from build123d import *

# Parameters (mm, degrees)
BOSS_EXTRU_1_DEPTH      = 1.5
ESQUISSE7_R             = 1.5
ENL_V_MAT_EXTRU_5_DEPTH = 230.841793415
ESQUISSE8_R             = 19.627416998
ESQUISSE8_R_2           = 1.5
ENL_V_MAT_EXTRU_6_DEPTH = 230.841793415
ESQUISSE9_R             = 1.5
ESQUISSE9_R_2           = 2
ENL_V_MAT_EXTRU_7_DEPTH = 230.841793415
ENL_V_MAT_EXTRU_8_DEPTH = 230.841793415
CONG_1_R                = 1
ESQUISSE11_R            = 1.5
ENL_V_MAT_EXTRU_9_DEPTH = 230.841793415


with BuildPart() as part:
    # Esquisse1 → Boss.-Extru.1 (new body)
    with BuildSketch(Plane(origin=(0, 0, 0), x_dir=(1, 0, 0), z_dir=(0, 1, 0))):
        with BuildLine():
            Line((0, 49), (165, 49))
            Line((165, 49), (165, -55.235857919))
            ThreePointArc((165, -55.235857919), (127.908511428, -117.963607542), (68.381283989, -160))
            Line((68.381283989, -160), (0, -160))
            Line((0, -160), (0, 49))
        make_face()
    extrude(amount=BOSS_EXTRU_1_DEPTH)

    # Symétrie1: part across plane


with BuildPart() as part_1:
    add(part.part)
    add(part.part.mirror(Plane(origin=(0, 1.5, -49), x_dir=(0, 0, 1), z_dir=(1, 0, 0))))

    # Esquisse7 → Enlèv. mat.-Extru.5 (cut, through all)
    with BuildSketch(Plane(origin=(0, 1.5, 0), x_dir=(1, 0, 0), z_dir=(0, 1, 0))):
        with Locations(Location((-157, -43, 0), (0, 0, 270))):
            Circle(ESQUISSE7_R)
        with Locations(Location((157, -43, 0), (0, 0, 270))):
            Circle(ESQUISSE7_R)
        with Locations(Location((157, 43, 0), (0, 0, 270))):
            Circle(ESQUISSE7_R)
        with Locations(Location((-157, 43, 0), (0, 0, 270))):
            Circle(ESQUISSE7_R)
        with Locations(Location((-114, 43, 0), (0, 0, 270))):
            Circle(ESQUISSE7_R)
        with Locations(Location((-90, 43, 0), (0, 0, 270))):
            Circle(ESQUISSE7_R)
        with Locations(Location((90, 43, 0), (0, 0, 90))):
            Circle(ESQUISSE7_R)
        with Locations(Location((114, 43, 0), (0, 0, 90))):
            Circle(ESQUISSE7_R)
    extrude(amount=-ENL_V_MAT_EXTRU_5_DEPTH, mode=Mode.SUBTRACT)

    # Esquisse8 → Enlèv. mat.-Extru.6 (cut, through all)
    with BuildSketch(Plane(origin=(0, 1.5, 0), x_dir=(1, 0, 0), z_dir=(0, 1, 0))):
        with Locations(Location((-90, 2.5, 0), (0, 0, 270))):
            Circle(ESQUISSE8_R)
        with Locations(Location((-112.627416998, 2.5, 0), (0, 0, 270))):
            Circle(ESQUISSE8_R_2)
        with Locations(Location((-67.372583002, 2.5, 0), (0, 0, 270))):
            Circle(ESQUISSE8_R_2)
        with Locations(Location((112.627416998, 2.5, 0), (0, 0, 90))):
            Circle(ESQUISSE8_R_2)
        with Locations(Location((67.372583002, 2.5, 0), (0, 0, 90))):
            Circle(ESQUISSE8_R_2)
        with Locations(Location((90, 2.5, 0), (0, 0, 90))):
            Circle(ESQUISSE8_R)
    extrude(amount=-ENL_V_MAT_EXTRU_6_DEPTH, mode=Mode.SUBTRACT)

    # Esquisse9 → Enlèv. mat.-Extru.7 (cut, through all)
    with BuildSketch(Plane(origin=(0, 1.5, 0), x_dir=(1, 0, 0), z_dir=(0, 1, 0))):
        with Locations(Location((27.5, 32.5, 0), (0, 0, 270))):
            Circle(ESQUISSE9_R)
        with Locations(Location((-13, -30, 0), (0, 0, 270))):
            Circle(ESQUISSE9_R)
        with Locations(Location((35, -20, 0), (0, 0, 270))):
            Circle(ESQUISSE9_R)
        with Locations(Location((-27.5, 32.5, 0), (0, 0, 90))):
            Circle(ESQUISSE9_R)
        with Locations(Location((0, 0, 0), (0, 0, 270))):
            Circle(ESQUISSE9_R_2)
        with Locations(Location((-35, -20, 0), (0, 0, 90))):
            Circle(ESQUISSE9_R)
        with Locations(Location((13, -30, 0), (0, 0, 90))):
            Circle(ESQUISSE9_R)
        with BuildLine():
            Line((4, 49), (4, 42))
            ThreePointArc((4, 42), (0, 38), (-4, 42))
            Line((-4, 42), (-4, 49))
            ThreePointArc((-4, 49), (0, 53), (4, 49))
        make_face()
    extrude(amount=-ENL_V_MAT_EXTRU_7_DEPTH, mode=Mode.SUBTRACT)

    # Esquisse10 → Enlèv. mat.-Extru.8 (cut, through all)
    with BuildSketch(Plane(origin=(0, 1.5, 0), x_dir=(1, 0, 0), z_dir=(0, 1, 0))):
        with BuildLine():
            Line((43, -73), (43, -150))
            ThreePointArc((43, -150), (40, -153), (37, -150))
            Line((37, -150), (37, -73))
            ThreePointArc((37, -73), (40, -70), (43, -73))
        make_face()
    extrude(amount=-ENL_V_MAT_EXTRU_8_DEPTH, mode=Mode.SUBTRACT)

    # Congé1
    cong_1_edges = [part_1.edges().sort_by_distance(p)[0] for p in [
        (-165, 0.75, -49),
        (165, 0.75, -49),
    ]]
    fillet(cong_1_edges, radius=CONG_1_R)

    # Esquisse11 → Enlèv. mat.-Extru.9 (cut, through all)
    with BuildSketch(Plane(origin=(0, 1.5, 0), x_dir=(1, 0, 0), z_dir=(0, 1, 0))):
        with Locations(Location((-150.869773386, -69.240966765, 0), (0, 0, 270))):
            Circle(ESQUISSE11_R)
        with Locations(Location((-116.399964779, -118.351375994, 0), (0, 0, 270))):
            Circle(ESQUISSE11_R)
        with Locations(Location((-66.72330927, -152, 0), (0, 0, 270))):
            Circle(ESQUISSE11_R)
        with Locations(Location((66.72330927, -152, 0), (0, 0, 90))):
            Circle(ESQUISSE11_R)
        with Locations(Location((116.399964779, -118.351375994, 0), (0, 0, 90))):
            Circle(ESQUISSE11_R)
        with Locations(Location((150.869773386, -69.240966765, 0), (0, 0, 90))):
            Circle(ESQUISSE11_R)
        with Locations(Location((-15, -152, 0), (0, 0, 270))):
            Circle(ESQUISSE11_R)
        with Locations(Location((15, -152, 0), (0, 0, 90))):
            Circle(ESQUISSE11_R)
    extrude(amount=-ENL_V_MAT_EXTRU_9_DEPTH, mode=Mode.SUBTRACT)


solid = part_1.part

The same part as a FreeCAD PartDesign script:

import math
import FreeCAD as App
import Part
import Sketcher
from FreeCAD import Vector


def edges_at(feature, points):
    """Names of the edges that pass closest to the given points."""
    edges = feature.Shape.Edges
    near = lambda p: min(range(len(edges)), key=lambda i: edges[i].distToShape(Part.Vertex(*p))[0])
    return sorted({f"Edge{near(p) + 1}" for p in points})

doc = App.newDocument("Part")
body = doc.addObject("PartDesign::Body", "Body")

# Sketch on XZ plane
sketch1 = body.newObject("Sketcher::SketchObject", "Sketch")
sketch1.AttachmentSupport = (doc.getObject("XZ_Plane"), [""])
sketch1.MapMode = "FlatFace"
sketch1.addGeometry(Part.LineSegment(Vector(165, -49, 0), Vector(0, -49, 0)), False)
sketch1.addGeometry(Part.LineSegment(Vector(0, -49, 0), Vector(0, 160, 0)), False)
sketch1.addGeometry(Part.LineSegment(Vector(0, 160, 0), Vector(68.381284, 160, 0)), False)
sketch1.addGeometry(Part.ArcOfCircle(Part.Circle(Vector(0, 0, 0), Vector(0, 0, 1), 174), math.radians(18.508628), math.radians(66.858959)), False)
sketch1.addGeometry(Part.LineSegment(Vector(165, 55.235858, 0), Vector(165, -49, 0)), False)
sketch1.addConstraint(Sketcher.Constraint("Coincident", 0, 2, 1, 1))
sketch1.addConstraint(Sketcher.Constraint("Coincident", 1, 2, 2, 1))
sketch1.addConstraint(Sketcher.Constraint("Coincident", 2, 2, 3, 2))
sketch1.addConstraint(Sketcher.Constraint("Coincident", 3, 1, 4, 1))
sketch1.addConstraint(Sketcher.Constraint("Coincident", 4, 2, 0, 1))
sketch1.addConstraint(Sketcher.Constraint("Horizontal", 0))
sketch1.addConstraint(Sketcher.Constraint("Vertical", 1))
sketch1.addConstraint(Sketcher.Constraint("Horizontal", 2))
sketch1.addConstraint(Sketcher.Constraint("Vertical", 4))
sketch1.addConstraint(Sketcher.Constraint("Coincident", 3, 3, -1, 1))
sketch1.addConstraint(Sketcher.Constraint("PointOnObject", 0, 2, -2))
sketch1.addConstraint(Sketcher.Constraint("Radius", 3, 174.0))
sketch1.addConstraint(Sketcher.Constraint("DistanceX", 0, 2, 0, 1, 165.0))
sketch1.addConstraint(Sketcher.Constraint("DistanceY", 1, 1, 1, 2, 209.0))
sketch1.addConstraint(Sketcher.Constraint("DistanceY", 0, 2, -1, 1, 49.0))
pad1 = body.newObject("PartDesign::Pad", "Pad")
pad1.Profile = sketch1
pad1.Length = 1.5
pad1.Reversed = True
body2 = doc.addObject("PartDesign::Body", "Body001")
doc.recompute()

body2.BaseFeature = body
doc.recompute()

mirroring = doc.addObject("Part::Mirroring", "Mirroring")
mirroring.Source = body
mirroring.Base = Vector(0, 1.5, -49)
mirroring.Normal = Vector(1, 0, 0)
body3 = doc.addObject("PartDesign::Body", "Body002")
body3.BaseFeature = mirroring
boolean = body2.newObject("PartDesign::Boolean", "Boolean")
boolean.Type = "Fuse"
boolean.addObjects([body3])
doc.recompute()

# Sketch on XZ plane
sketch2 = body2.newObject("Sketcher::SketchObject", "Sketch001")
sketch2.AttachmentSupport = (doc.getObject("XZ_Plane001"), [""])
sketch2.MapMode = "FlatFace"
sketch2.AttachmentOffset = App.Placement(Vector(0, 0, -1.5), App.Rotation())
sketch2.addGeometry(Part.Circle(Vector(-157, 43, 0), Vector(0, 0, 1), 1.5), False)
sketch2.addGeometry(Part.Circle(Vector(157, 43, 0), Vector(0, 0, 1), 1.5), False)
sketch2.addGeometry(Part.Circle(Vector(157, -43, 0), Vector(0, 0, 1), 1.5), False)
sketch2.addGeometry(Part.Circle(Vector(-157, -43, 0), Vector(0, 0, 1), 1.5), False)
sketch2.addGeometry(Part.Circle(Vector(-114, -43, 0), Vector(0, 0, 1), 1.5), False)
sketch2.addGeometry(Part.Circle(Vector(-90, -43, 0), Vector(0, 0, 1), 1.5), False)
sketch2.addGeometry(Part.Circle(Vector(90, -43, 0), Vector(0, 0, 1), 1.5), False)
sketch2.addGeometry(Part.Circle(Vector(114, -43, 0), Vector(0, 0, 1), 1.5), False)
sketch2.addConstraint(Sketcher.Constraint("Equal", 0, 1))
sketch2.addConstraint(Sketcher.Constraint("Equal", 1, 2))
sketch2.addConstraint(Sketcher.Constraint("Equal", 2, 3))
sketch2.addConstraint(Sketcher.Constraint("Equal", 3, 4))
sketch2.addConstraint(Sketcher.Constraint("Equal", 4, 5))
sketch2.addConstraint(Sketcher.Constraint("Equal", 5, 6))
sketch2.addConstraint(Sketcher.Constraint("Equal", 6, 7))
sketch2.addConstraint(Sketcher.Constraint("Symmetric", 0, 3, 2, 3, -1, 1))
sketch2.addConstraint(Sketcher.Constraint("Symmetric", 1, 3, 3, 3, -1, 1))
sketch2.addConstraint(Sketcher.Constraint("Symmetric", 0, 3, 1, 3, -2))
sketch2.addConstraint(Sketcher.Constraint("Symmetric", 5, 3, 6, 3, -2))
sketch2.addConstraint(Sketcher.Constraint("Symmetric", 4, 3, 7, 3, -2))
sketch2.addConstraint(Sketcher.Constraint("Horizontal", 3, 3, 4, 3))
sketch2.addConstraint(Sketcher.Constraint("Horizontal", 4, 3, 5, 3))
sketch2.addConstraint(Sketcher.Constraint("Diameter", 0, 3.0))
sketch2.addConstraint(Sketcher.Constraint("DistanceX", 0, 3, -1, 1, 157.0))
sketch2.addConstraint(Sketcher.Constraint("DistanceY", -1, 1, 0, 3, 43.0))
sketch2.addConstraint(Sketcher.Constraint("DistanceX", 4, 3, -1, 1, 114.0))
sketch2.addConstraint(Sketcher.Constraint("DistanceX", 5, 3, -1, 1, 90.0))
pocket1 = body2.newObject("PartDesign::Pocket", "Pocket")
pocket1.Profile = sketch2
pocket1.Type = "ThroughAll"
pocket1.Reversed = True

# Sketch on XZ plane
sketch3 = body2.newObject("Sketcher::SketchObject", "Sketch002")
sketch3.AttachmentSupport = (doc.getObject("XZ_Plane001"), [""])
sketch3.MapMode = "FlatFace"
sketch3.AttachmentOffset = App.Placement(Vector(0, 0, -1.5), App.Rotation())
sketch3.addGeometry(Part.Circle(Vector(-90, -2.5, 0), Vector(0, 0, 1), 19.627417), False)
sketch3.addGeometry(Part.Circle(Vector(-112.627417, -2.5, 0), Vector(0, 0, 1), 1.5), False)
sketch3.addGeometry(Part.Circle(Vector(-67.372583, -2.5, 0), Vector(0, 0, 1), 1.5), False)
sketch3.addGeometry(Part.Circle(Vector(112.627417, -2.5, 0), Vector(0, 0, 1), 1.5), False)
sketch3.addGeometry(Part.Circle(Vector(67.372583, -2.5, 0), Vector(0, 0, 1), 1.5), False)
sketch3.addGeometry(Part.Circle(Vector(90, -2.5, 0), Vector(0, 0, 1), 19.627417), False)
sketch3.addConstraint(Sketcher.Constraint("Equal", 1, 2))
sketch3.addConstraint(Sketcher.Constraint("Equal", 2, 3))
sketch3.addConstraint(Sketcher.Constraint("Equal", 3, 4))
sketch3.addConstraint(Sketcher.Constraint("Equal", 0, 5))
sketch3.addConstraint(Sketcher.Constraint("Symmetric", 1, 3, 3, 3, -2))
sketch3.addConstraint(Sketcher.Constraint("Symmetric", 2, 3, 4, 3, -2))
sketch3.addConstraint(Sketcher.Constraint("Symmetric", 0, 3, 5, 3, -2))
sketch3.addConstraint(Sketcher.Constraint("Horizontal", 0, 3, 1, 3))
sketch3.addConstraint(Sketcher.Constraint("Horizontal", 1, 3, 2, 3))
sketch3.addConstraint(Sketcher.Constraint("Diameter", 1, 3.0))
sketch3.addConstraint(Sketcher.Constraint("DistanceX", 0, 3, -1, 1, 90.0))
sketch3.addConstraint(Sketcher.Constraint("DistanceX", 2, 3, 3, 3, 180.0))
sketch3.addConstraint(Sketcher.Constraint("DistanceY", 0, 3, -1, 1, 2.5))
sketch3.addConstraint(Sketcher.Constraint("Diameter", 0, 39.254834))
sketch3.addConstraint(Sketcher.Constraint("DistanceX", 1, 3, -1, 1, 112.627417))
pocket2 = body2.newObject("PartDesign::Pocket", "Pocket001")
pocket2.Profile = sketch3
pocket2.Type = "ThroughAll"
pocket2.Reversed = True

# Sketch on XZ plane
sketch4 = body2.newObject("Sketcher::SketchObject", "Sketch003")
sketch4.AttachmentSupport = (doc.getObject("XZ_Plane001"), [""])
sketch4.MapMode = "FlatFace"
sketch4.AttachmentOffset = App.Placement(Vector(0, 0, -1.5), App.Rotation())
sketch4.addGeometry(Part.Circle(Vector(27.5, -32.5, 0), Vector(0, 0, 1), 1.5), False)
sketch4.addGeometry(Part.Circle(Vector(-13, 30, 0), Vector(0, 0, 1), 1.5), False)
sketch4.addGeometry(Part.Circle(Vector(35, 20, 0), Vector(0, 0, 1), 1.5), False)
sketch4.addGeometry(Part.Circle(Vector(-27.5, -32.5, 0), Vector(0, 0, 1), 1.5), False)
sketch4.addGeometry(Part.Circle(Vector(0, 0, 0), Vector(0, 0, 1), 2), False)
sketch4.addGeometry(Part.Circle(Vector(-35, 20, 0), Vector(0, 0, 1), 1.5), False)
sketch4.addGeometry(Part.Circle(Vector(13, 30, 0), Vector(0, 0, 1), 1.5), False)
sketch4.addGeometry(Part.LineSegment(Vector(4, -42, 0), Vector(4, -49, 0)), False)
sketch4.addGeometry(Part.ArcOfCircle(Part.Circle(Vector(0, -49, 0), Vector(0, 0, 1), 4), math.radians(180), math.radians(360)), False)
sketch4.addGeometry(Part.LineSegment(Vector(-4, -49, 0), Vector(-4, -42, 0)), False)
sketch4.addGeometry(Part.ArcOfCircle(Part.Circle(Vector(0, -42, 0), Vector(0, 0, 1), 4), math.radians(0), math.radians(180)), False)
sketch4.addConstraint(Sketcher.Constraint("Tangent", 7, 2, 8, 2))
sketch4.addConstraint(Sketcher.Constraint("Tangent", 8, 1, 9, 1))
sketch4.addConstraint(Sketcher.Constraint("Tangent", 9, 2, 10, 2))
sketch4.addConstraint(Sketcher.Constraint("Tangent", 10, 1, 7, 1))
sketch4.addConstraint(Sketcher.Constraint("Vertical", 7))
sketch4.addConstraint(Sketcher.Constraint("Vertical", 9))
sketch4.addConstraint(Sketcher.Constraint("Coincident", 4, 3, -1, 1))
sketch4.addConstraint(Sketcher.Constraint("Equal", 0, 1))
sketch4.addConstraint(Sketcher.Constraint("Equal", 1, 2))
sketch4.addConstraint(Sketcher.Constraint("Equal", 2, 3))
sketch4.addConstraint(Sketcher.Constraint("Equal", 3, 5))
sketch4.addConstraint(Sketcher.Constraint("Equal", 5, 6))
sketch4.addConstraint(Sketcher.Constraint("Symmetric", 0, 3, 3, 3, -2))
sketch4.addConstraint(Sketcher.Constraint("Symmetric", 2, 3, 5, 3, -2))
sketch4.addConstraint(Sketcher.Constraint("Symmetric", 1, 3, 6, 3, -2))
sketch4.addConstraint(Sketcher.Constraint("PointOnObject", 8, 3, -2))
sketch4.addConstraint(Sketcher.Constraint("Diameter", 0, 3.0))
sketch4.addConstraint(Sketcher.Constraint("Diameter", 4, 4.0))
sketch4.addConstraint(Sketcher.Constraint("Radius", 8, 4.0))
sketch4.addConstraint(Sketcher.Constraint("DistanceY", 7, 2, 7, 1, 7.0))
sketch4.addConstraint(Sketcher.Constraint("DistanceX", 1, 3, -1, 1, 13.0))
sketch4.addConstraint(Sketcher.Constraint("DistanceY", -1, 1, 1, 3, 30.0))
sketch4.addConstraint(Sketcher.Constraint("DistanceX", -1, 1, 2, 3, 35.0))
sketch4.addConstraint(Sketcher.Constraint("DistanceY", -1, 1, 2, 3, 20.0))
sketch4.addConstraint(Sketcher.Constraint("DistanceY", 8, 3, -1, 1, 49.0))
sketch4.addConstraint(Sketcher.Constraint("DistanceX", 3, 3, 0, 3, 55.0))
sketch4.addConstraint(Sketcher.Constraint("DistanceY", 0, 3, -1, 1, 32.5))
pocket3 = body2.newObject("PartDesign::Pocket", "Pocket002")
pocket3.Profile = sketch4
pocket3.Type = "ThroughAll"
pocket3.Reversed = True

# Sketch on XZ plane
sketch5 = body2.newObject("Sketcher::SketchObject", "Sketch004")
sketch5.AttachmentSupport = (doc.getObject("XZ_Plane001"), [""])
sketch5.MapMode = "FlatFace"
sketch5.AttachmentOffset = App.Placement(Vector(0, 0, -1.5), App.Rotation())
sketch5.addGeometry(Part.LineSegment(Vector(43, 150, 0), Vector(43, 73, 0)), False)
sketch5.addGeometry(Part.ArcOfCircle(Part.Circle(Vector(40, 73, 0), Vector(0, 0, 1), 3), math.radians(180), math.radians(360)), False)
sketch5.addGeometry(Part.LineSegment(Vector(37, 73, 0), Vector(37, 150, 0)), False)
sketch5.addGeometry(Part.ArcOfCircle(Part.Circle(Vector(40, 150, 0), Vector(0, 0, 1), 3), math.radians(0), math.radians(180)), False)
sketch5.addConstraint(Sketcher.Constraint("Tangent", 0, 2, 1, 2))
sketch5.addConstraint(Sketcher.Constraint("Tangent", 1, 1, 2, 1))
sketch5.addConstraint(Sketcher.Constraint("Tangent", 2, 2, 3, 2))
sketch5.addConstraint(Sketcher.Constraint("Tangent", 3, 1, 0, 1))
sketch5.addConstraint(Sketcher.Constraint("Vertical", 0))
sketch5.addConstraint(Sketcher.Constraint("Vertical", 2))
sketch5.addConstraint(Sketcher.Constraint("Radius", 1, 3.0))
sketch5.addConstraint(Sketcher.Constraint("DistanceY", 0, 2, 0, 1, 77.0))
sketch5.addConstraint(Sketcher.Constraint("DistanceX", -1, 1, 1, 3, 40.0))
sketch5.addConstraint(Sketcher.Constraint("DistanceY", -1, 1, 1, 3, 73.0))
pocket4 = body2.newObject("PartDesign::Pocket", "Pocket003")
pocket4.Profile = sketch5
pocket4.Type = "ThroughAll"
pocket4.Reversed = True
doc.recompute()

fillet = body2.newObject("PartDesign::Fillet", "Fillet")
fillet.Base = (pocket4, edges_at(pocket4, [(-165, 0.75, -49), (165, 0.75, -49)]))
fillet.Radius = 1

# Sketch on XZ plane
sketch6 = body2.newObject("Sketcher::SketchObject", "Sketch005")
sketch6.AttachmentSupport = (doc.getObject("XZ_Plane001"), [""])
sketch6.MapMode = "FlatFace"
sketch6.AttachmentOffset = App.Placement(Vector(0, 0, -1.5), App.Rotation())
sketch6.addGeometry(Part.Circle(Vector(-150.869773, 69.240967, 0), Vector(0, 0, 1), 1.5), False)
sketch6.addGeometry(Part.Circle(Vector(-116.399965, 118.351376, 0), Vector(0, 0, 1), 1.5), False)
sketch6.addGeometry(Part.Circle(Vector(-66.723309, 152, 0), Vector(0, 0, 1), 1.5), False)
sketch6.addGeometry(Part.Circle(Vector(66.723309, 152, 0), Vector(0, 0, 1), 1.5), False)
sketch6.addGeometry(Part.Circle(Vector(116.399965, 118.351376, 0), Vector(0, 0, 1), 1.5), False)
sketch6.addGeometry(Part.Circle(Vector(150.869773, 69.240967, 0), Vector(0, 0, 1), 1.5), False)
sketch6.addGeometry(Part.Circle(Vector(-15, 152, 0), Vector(0, 0, 1), 1.5), False)
sketch6.addGeometry(Part.Circle(Vector(15, 152, 0), Vector(0, 0, 1), 1.5), False)
sketch6.addConstraint(Sketcher.Constraint("Equal", 0, 1))
sketch6.addConstraint(Sketcher.Constraint("Equal", 1, 2))
sketch6.addConstraint(Sketcher.Constraint("Equal", 2, 3))
sketch6.addConstraint(Sketcher.Constraint("Equal", 3, 4))
sketch6.addConstraint(Sketcher.Constraint("Equal", 4, 5))
sketch6.addConstraint(Sketcher.Constraint("Equal", 5, 6))
sketch6.addConstraint(Sketcher.Constraint("Equal", 6, 7))
sketch6.addConstraint(Sketcher.Constraint("Symmetric", 2, 3, 3, 3, -2))
sketch6.addConstraint(Sketcher.Constraint("Symmetric", 1, 3, 4, 3, -2))
sketch6.addConstraint(Sketcher.Constraint("Symmetric", 0, 3, 5, 3, -2))
sketch6.addConstraint(Sketcher.Constraint("Symmetric", 6, 3, 7, 3, -2))
sketch6.addConstraint(Sketcher.Constraint("Horizontal", 3, 3, 6, 3))
sketch6.addConstraint(Sketcher.Constraint("Diameter", 0, 3.0))
sketch6.addConstraint(Sketcher.Constraint("DistanceY", -1, 1, 2, 3, 152.0))
sketch6.addConstraint(Sketcher.Constraint("DistanceX", 6, 3, -1, 1, 15.0))
sketch6.addConstraint(Sketcher.Constraint("DistanceX", 2, 3, -1, 1, 66.723309))
sketch6.addConstraint(Sketcher.Constraint("DistanceX", 0, 3, 1, 3, 34.469809))
sketch6.addConstraint(Sketcher.Constraint("DistanceY", 0, 3, 1, 3, 49.110409))
sketch6.addConstraint(Sketcher.Constraint("DistanceX", 1, 3, 4, 3, 232.79993))
sketch6.addConstraint(Sketcher.Constraint("DistanceY", -1, 1, 0, 3, 69.240967))
pocket5 = body2.newObject("PartDesign::Pocket", "Pocket004")
pocket5.Profile = sketch6
pocket5.Type = "ThroughAll"
pocket5.Reversed = True
mirroring.Visibility = False

doc.recompute()
